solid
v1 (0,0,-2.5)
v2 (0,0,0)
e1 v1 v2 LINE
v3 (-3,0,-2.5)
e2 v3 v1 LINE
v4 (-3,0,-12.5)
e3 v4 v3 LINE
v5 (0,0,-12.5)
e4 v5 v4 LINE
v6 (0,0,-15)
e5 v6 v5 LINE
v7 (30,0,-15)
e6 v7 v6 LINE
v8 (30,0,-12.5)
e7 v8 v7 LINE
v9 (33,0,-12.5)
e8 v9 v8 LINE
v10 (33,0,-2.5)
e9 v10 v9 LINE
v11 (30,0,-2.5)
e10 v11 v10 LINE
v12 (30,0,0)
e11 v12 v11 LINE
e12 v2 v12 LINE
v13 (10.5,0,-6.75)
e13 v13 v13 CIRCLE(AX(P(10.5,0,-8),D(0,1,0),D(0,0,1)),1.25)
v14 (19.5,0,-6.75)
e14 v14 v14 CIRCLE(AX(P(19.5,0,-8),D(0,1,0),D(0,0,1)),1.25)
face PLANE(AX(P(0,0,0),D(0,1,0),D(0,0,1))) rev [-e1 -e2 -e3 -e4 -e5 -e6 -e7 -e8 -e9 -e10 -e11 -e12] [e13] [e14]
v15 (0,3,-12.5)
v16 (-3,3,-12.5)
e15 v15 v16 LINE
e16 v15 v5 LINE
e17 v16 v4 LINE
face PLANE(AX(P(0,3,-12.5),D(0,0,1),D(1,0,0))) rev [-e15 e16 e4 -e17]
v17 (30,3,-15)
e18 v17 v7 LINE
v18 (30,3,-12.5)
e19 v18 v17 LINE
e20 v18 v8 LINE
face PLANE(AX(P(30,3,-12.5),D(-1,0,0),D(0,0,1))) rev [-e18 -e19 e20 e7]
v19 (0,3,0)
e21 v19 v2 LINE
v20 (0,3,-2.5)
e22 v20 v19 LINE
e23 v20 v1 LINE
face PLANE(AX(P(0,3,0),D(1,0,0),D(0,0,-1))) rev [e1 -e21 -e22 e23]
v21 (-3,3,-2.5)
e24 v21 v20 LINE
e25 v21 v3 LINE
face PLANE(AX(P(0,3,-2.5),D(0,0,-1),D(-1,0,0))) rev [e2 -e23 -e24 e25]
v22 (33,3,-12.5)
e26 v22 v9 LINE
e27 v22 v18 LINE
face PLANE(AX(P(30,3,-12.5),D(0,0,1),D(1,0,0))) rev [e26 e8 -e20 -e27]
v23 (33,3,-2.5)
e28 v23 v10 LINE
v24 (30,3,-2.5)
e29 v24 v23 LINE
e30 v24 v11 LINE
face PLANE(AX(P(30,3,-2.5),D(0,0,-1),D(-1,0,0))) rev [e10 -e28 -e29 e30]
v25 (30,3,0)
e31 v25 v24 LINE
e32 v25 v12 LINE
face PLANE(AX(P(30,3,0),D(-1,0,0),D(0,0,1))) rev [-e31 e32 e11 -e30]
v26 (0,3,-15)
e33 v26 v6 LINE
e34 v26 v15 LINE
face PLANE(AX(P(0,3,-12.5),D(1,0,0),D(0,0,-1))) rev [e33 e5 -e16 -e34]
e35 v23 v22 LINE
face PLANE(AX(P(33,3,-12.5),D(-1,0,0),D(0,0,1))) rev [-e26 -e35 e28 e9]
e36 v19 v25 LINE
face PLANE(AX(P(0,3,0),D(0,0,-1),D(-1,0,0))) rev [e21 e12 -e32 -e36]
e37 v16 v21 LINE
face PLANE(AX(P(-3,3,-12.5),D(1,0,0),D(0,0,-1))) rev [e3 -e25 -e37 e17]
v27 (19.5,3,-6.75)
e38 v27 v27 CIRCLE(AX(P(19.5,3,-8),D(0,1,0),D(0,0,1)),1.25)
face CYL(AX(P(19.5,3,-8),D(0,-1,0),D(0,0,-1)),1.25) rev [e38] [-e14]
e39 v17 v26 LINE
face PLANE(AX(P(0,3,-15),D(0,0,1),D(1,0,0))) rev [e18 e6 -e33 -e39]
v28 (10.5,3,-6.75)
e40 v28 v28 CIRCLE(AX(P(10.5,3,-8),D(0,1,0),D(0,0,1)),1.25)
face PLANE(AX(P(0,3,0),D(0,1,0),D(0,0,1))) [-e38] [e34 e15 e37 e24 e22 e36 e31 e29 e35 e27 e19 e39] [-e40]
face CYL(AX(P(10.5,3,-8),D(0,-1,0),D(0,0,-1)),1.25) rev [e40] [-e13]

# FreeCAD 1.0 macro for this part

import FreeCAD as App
import Part
import Sketcher
from FreeCAD import Vector

doc = App.newDocument("Part")
params = doc.addObject("Spreadsheet::Sheet", "Params")
for row, (alias, value) in enumerate([
    ("sketch1_diameter", "2.5 mm"),
    ("sketch1_width", "3 mm"),
    ("sketch1_width2", "30 mm"),
    ("sketch1_height", "10 mm"),
    ("sketch1_height2", "2.5 mm"),
    ("pad1_length", "3 mm"),
], start=1):
    params.set(f"A{row}", alias)
    params.set(f"B{row}", "=" + value)
    params.setAlias(f"B{row}", alias)

body = doc.addObject("PartDesign::Body", "Body")

# Sketch on XZ plane
sketch1 = body.newObject("Sketcher::SketchObject", "Sketch")
sketch1.AttachmentSupport = (doc.getObject("XZ_Plane"), [""])
sketch1.MapMode = "FlatFace"
sketch1.addGeometry([
    Part.LineSegment(Vector(0, -15, 0), Vector(0, -12.5, 0)),  # 0
    Part.LineSegment(Vector(0, -12.5, 0), Vector(-3, -12.5, 0)),  # 1
    Part.LineSegment(Vector(-3, -12.5, 0), Vector(-3, -2.5, 0)),  # 2
    Part.LineSegment(Vector(-3, -2.5, 0), Vector(0, -2.5, 0)),  # 3
    Part.LineSegment(Vector(0, -2.5, 0), Vector(0, 0, 0)),  # 4
    Part.LineSegment(Vector(0, 0, 0), Vector(30, 0, 0)),  # 5
    Part.LineSegment(Vector(30, 0, 0), Vector(30, -2.5, 0)),  # 6
    Part.LineSegment(Vector(30, -2.5, 0), Vector(33, -2.5, 0)),  # 7
    Part.LineSegment(Vector(33, -2.5, 0), Vector(33, -12.5, 0)),  # 8
    Part.LineSegment(Vector(33, -12.5, 0), Vector(30, -12.5, 0)),  # 9
    Part.LineSegment(Vector(30, -12.5, 0), Vector(30, -15, 0)),  # 10
    Part.LineSegment(Vector(30, -15, 0), Vector(0, -15, 0)),  # 11
    Part.Circle(Vector(19.5, -8, 0), Vector(0, 0, 1), 1.2),  # 12
    Part.Circle(Vector(10.5, -8, 0), Vector(0, 0, 1), 1.2),  # 13
], False)
sketch1.addConstraint([
    Sketcher.Constraint("Coincident", 0, 2, 1, 1),
    Sketcher.Constraint("Coincident", 1, 2, 2, 1),
    Sketcher.Constraint("Coincident", 2, 2, 3, 1),
    Sketcher.Constraint("Coincident", 3, 2, 4, 1),
    Sketcher.Constraint("Coincident", 4, 2, 5, 1),
    Sketcher.Constraint("Coincident", 5, 2, 6, 1),
    Sketcher.Constraint("Coincident", 6, 2, 7, 1),
    Sketcher.Constraint("Coincident", 7, 2, 8, 1),
    Sketcher.Constraint("Coincident", 8, 2, 9, 1),
    Sketcher.Constraint("Coincident", 9, 2, 10, 1),
    Sketcher.Constraint("Coincident", 10, 2, 11, 1),
    Sketcher.Constraint("Coincident", 11, 2, 0, 1),
    Sketcher.Constraint("Vertical", 0),
    Sketcher.Constraint("Horizontal", 1),
    Sketcher.Constraint("Vertical", 2),
    Sketcher.Constraint("Horizontal", 3),
    Sketcher.Constraint("Vertical", 4),
    Sketcher.Constraint("Horizontal", 5),
    Sketcher.Constraint("Vertical", 6),
    Sketcher.Constraint("Horizontal", 7),
    Sketcher.Constraint("Vertical", 8),
    Sketcher.Constraint("Horizontal", 9),
    Sketcher.Constraint("Vertical", 10),
    Sketcher.Constraint("Horizontal", 11),
    Sketcher.Constraint("Coincident", 4, 2, -1, 1),
    Sketcher.Constraint("Equal", 12, 13),
    Sketcher.Constraint("PointOnObject", 0, 2, -2),
    Sketcher.Constraint("Horizontal", 12, 3, 13, 3),
    Sketcher.Constraint("Horizontal", 3, 2, 6, 2),
    Sketcher.Constraint("Horizontal", 1, 2, 8, 2),
    Sketcher.Constraint("Vertical", 6, 2, 9, 2),
    Sketcher.Constraint("Equal", 3, 7),
    Sketcher.Constraint("Equal", 0, 4),
    Sketcher.Constraint("Diameter", 12, 2.5),
    Sketcher.Constraint("DistanceX", 1, 2, 1, 1, 3.0),
    Sketcher.Constraint("DistanceX", 5, 1, 5, 2, 30.0),
    Sketcher.Constraint("DistanceY", 2, 1, 2, 2, 10.0),
    Sketcher.Constraint("DistanceY", 0, 1, 0, 2, 2.5),
    Sketcher.Constraint("DistanceY", 12, 3, -1, 1, 8.0),
    Sketcher.Constraint("DistanceX", 13, 3, 12, 3, 9.0),
    Sketcher.Constraint("DistanceX", -1, 1, 12, 3, 19.5),
])
sketch1.setExpression("Constraints[33]", "Params.sketch1_diameter")
sketch1.setExpression("Constraints[34]", "Params.sketch1_width")
sketch1.setExpression("Constraints[35]", "Params.sketch1_width2")
sketch1.setExpression("Constraints[36]", "Params.sketch1_height")
sketch1.setExpression("Constraints[37]", "Params.sketch1_height2")
pad1 = body.newObject("PartDesign::Pad", "Pad")
pad1.Profile = sketch1
pad1.setExpression("Length", "Params.pad1_length")
pad1.Reversed = True

doc.recompute()
